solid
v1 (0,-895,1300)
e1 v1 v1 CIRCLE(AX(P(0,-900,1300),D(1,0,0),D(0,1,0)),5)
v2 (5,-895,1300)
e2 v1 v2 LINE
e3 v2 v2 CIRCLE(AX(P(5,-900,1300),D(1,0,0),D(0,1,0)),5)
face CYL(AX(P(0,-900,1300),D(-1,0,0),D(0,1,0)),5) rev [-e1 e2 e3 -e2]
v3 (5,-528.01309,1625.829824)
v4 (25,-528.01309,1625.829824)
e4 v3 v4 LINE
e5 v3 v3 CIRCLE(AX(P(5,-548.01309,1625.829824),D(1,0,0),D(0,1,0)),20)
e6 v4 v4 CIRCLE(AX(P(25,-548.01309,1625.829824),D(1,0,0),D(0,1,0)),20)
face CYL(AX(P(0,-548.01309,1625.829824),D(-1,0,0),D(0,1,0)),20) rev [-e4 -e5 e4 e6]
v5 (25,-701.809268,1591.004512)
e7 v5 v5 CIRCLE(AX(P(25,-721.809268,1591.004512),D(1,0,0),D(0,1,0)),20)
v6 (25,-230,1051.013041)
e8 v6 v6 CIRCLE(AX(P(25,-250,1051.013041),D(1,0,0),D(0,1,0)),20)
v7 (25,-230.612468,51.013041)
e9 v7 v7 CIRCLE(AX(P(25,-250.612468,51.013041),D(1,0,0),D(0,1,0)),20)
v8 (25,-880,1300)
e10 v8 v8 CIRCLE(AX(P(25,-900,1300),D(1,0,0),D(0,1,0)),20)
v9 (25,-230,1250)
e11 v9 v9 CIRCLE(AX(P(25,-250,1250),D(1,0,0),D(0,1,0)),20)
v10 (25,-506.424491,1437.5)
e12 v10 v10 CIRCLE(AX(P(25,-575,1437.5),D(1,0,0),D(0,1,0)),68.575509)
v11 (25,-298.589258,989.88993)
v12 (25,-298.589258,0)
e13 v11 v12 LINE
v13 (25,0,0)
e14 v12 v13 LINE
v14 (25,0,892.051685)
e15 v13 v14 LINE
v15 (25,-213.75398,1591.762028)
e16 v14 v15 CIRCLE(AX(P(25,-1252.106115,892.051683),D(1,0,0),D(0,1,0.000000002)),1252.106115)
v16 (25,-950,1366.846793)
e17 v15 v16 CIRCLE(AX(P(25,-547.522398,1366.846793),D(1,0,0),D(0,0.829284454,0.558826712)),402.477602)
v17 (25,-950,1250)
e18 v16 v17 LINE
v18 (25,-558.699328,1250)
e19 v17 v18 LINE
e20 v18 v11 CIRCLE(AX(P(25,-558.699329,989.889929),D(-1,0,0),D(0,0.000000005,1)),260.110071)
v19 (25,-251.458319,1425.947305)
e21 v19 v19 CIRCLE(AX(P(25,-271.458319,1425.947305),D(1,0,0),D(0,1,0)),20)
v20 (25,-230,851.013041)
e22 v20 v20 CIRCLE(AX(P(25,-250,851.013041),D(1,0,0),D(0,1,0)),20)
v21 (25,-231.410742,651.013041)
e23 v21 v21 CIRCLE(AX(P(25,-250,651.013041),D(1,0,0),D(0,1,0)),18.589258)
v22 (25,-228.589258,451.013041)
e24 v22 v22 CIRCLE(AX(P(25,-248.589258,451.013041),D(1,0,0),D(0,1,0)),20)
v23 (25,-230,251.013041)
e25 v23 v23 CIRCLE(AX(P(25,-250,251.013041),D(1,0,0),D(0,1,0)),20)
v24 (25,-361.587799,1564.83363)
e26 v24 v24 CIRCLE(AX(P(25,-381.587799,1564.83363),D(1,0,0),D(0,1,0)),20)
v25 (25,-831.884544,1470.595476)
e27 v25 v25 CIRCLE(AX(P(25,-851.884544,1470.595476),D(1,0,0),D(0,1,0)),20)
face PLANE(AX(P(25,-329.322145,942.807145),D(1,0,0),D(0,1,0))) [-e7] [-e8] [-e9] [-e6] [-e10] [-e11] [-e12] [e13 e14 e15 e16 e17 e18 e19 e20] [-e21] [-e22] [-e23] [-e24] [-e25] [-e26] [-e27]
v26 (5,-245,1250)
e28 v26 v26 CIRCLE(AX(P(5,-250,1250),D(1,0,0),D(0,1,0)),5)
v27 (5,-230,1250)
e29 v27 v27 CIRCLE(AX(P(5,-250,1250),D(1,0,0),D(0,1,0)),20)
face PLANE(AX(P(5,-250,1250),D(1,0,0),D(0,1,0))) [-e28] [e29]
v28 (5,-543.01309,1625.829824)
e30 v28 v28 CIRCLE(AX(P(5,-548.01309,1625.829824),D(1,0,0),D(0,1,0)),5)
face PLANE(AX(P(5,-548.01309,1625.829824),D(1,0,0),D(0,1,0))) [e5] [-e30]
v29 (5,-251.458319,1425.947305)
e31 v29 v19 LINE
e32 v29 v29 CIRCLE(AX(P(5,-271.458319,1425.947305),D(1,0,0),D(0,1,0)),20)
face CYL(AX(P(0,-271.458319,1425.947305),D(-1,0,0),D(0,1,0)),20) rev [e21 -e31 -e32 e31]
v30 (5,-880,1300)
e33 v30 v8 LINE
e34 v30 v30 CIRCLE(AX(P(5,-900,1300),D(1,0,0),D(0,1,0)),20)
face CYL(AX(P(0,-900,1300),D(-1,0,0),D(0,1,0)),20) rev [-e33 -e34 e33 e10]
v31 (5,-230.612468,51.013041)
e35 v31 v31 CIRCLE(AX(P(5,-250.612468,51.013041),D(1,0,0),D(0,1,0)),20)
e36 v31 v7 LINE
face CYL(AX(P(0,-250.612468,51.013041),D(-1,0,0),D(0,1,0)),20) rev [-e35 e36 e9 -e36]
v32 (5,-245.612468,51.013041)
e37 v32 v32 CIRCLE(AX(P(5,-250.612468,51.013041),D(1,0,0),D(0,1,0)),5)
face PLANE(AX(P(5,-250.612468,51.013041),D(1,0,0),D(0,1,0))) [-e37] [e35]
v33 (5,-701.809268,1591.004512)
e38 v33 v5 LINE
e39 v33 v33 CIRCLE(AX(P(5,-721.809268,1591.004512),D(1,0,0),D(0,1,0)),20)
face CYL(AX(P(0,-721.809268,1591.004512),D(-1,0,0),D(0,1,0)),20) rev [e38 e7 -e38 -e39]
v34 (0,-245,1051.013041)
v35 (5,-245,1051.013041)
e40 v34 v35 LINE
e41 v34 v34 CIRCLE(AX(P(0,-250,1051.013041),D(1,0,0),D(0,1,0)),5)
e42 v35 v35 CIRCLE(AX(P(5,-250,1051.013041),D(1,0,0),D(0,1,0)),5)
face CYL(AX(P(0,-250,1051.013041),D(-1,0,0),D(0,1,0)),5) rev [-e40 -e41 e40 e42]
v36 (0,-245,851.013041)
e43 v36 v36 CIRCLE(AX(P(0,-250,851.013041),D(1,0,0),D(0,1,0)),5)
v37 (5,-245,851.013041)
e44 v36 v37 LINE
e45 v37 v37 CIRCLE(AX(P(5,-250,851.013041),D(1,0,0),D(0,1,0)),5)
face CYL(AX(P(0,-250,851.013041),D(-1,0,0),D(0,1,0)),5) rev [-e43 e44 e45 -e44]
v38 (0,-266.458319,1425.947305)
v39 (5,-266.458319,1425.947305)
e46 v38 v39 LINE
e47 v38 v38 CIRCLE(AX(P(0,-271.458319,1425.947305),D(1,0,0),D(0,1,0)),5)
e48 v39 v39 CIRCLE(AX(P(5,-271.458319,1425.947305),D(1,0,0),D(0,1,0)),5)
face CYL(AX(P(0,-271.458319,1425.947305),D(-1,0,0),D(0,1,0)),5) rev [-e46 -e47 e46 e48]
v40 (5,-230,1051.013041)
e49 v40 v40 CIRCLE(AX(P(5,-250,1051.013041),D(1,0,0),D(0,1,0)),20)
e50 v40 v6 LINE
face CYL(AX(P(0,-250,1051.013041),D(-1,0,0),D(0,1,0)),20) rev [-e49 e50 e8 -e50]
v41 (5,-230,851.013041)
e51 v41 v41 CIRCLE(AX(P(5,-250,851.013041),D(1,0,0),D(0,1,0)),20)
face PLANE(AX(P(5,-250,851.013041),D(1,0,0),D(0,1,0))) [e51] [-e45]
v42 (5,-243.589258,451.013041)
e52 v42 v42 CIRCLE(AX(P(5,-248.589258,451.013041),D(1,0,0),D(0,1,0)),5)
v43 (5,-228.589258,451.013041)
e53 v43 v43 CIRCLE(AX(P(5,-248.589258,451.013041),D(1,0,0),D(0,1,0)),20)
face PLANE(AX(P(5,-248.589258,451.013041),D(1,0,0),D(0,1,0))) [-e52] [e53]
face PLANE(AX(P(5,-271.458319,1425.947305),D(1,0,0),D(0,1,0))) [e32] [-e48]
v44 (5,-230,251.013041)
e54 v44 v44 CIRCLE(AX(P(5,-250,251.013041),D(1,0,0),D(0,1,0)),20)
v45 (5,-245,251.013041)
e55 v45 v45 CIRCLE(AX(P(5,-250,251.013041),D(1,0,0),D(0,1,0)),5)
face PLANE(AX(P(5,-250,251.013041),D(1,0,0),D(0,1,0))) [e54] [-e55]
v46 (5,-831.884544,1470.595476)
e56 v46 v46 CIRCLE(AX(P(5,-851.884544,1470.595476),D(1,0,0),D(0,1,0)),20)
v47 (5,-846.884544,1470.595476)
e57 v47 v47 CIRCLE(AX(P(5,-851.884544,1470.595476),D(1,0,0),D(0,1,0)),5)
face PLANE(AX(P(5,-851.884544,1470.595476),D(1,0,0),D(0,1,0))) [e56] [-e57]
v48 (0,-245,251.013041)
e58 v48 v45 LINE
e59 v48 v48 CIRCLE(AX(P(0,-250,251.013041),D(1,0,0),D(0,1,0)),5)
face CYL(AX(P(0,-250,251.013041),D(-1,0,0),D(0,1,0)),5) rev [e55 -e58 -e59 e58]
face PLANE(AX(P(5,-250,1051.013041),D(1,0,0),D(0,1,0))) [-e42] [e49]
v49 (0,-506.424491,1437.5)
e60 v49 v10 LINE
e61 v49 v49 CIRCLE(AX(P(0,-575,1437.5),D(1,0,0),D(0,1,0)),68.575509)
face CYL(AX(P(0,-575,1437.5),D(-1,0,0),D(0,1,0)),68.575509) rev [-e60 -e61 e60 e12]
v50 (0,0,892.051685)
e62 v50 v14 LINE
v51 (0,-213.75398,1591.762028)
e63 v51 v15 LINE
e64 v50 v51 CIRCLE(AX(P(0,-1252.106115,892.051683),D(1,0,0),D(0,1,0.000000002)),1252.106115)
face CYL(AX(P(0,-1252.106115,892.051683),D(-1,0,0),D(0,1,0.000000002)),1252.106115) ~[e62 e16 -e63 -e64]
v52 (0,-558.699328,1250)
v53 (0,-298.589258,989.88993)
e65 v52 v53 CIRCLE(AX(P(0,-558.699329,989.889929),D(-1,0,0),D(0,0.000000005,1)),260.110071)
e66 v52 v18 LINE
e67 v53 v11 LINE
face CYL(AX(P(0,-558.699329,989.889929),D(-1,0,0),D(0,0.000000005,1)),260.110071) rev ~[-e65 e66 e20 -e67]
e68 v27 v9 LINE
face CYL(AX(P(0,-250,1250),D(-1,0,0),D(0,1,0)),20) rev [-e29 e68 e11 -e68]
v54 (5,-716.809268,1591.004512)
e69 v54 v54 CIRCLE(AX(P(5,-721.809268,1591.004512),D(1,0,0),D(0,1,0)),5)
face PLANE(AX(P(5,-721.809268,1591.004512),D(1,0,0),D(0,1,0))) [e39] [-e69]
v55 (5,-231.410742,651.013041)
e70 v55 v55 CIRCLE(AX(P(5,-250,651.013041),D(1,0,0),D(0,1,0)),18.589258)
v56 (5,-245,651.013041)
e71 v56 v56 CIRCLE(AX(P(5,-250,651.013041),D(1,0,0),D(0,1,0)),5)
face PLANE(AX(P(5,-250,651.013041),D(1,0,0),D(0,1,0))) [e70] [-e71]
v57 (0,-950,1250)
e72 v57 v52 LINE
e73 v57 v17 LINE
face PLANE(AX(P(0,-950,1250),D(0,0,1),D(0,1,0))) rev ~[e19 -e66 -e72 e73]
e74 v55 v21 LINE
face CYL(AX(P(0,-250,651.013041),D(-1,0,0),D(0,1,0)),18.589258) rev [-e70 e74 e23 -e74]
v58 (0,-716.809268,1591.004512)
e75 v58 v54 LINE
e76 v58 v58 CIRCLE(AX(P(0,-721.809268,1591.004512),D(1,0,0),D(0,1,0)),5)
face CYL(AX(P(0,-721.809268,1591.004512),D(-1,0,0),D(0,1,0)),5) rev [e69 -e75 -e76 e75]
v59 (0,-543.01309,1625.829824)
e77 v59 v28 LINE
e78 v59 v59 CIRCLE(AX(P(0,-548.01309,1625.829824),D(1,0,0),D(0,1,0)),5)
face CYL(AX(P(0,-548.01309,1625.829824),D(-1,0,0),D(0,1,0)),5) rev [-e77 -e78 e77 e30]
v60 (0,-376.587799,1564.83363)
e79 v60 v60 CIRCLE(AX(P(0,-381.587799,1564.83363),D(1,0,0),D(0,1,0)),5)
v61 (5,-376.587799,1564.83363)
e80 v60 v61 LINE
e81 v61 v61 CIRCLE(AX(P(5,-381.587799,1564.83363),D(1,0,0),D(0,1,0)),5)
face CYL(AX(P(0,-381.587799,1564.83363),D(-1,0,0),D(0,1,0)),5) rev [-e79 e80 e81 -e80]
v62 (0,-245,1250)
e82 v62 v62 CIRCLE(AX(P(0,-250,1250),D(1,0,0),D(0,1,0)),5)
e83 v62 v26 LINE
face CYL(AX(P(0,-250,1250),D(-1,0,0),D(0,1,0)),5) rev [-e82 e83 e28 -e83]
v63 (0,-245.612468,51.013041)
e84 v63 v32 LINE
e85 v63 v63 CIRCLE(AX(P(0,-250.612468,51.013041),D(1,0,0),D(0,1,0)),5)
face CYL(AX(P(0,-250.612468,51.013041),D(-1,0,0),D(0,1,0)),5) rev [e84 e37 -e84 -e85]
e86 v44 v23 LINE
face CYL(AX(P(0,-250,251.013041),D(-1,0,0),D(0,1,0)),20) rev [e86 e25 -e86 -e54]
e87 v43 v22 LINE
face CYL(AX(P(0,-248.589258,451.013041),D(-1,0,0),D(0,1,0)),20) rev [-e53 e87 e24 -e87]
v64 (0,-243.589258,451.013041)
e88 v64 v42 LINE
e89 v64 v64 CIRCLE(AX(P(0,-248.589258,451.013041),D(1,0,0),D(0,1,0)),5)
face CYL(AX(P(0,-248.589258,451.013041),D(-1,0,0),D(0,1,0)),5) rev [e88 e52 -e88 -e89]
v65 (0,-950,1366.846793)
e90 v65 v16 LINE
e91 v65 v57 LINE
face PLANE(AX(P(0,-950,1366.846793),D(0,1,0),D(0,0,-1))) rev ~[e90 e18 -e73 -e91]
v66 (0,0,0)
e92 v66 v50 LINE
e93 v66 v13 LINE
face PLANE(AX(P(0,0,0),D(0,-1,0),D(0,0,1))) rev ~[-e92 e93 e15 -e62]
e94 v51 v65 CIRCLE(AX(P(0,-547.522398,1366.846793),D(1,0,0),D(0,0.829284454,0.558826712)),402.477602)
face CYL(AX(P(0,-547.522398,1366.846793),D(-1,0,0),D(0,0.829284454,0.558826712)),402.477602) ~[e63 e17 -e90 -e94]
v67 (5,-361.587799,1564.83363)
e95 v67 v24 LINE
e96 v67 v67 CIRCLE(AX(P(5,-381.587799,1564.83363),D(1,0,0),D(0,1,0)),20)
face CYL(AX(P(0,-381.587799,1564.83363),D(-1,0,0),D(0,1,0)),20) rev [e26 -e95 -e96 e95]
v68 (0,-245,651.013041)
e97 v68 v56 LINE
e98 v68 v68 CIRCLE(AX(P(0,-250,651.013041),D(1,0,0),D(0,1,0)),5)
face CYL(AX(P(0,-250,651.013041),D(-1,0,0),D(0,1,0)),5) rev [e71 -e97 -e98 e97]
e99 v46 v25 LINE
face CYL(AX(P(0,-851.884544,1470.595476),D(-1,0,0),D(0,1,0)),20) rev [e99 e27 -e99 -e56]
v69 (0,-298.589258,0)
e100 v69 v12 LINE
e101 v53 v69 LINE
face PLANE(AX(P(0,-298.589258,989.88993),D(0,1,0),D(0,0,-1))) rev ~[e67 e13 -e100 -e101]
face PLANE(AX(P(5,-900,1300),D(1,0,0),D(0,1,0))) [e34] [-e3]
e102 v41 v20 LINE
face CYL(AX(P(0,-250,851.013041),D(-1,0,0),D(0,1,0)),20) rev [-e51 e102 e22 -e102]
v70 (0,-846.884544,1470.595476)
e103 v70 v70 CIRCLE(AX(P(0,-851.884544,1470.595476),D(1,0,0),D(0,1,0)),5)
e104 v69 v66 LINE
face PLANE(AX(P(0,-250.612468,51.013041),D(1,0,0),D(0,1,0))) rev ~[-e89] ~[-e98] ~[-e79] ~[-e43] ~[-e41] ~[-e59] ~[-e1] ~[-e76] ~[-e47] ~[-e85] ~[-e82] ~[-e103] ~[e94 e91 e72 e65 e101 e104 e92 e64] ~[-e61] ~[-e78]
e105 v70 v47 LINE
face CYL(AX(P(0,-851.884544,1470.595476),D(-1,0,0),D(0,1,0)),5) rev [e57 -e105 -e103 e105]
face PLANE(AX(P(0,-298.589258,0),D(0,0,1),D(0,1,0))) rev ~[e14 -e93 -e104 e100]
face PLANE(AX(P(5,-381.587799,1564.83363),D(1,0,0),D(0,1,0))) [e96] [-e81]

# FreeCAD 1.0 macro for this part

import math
import FreeCAD as App
import Part
import Sketcher
from FreeCAD import Vector

doc = App.newDocument("Part")
body = doc.addObject("PartDesign::Body", "Body")

# Sketch on YZ plane
sketch1 = body.newObject("Sketcher::SketchObject", "Sketch")
sketch1.AttachmentSupport = (doc.getObject("YZ_Plane"), [""])
sketch1.MapMode = "FlatFace"
sketch1.addGeometry([
    Part.LineSegment(Vector(-299, 0, 0), Vector(0, 0, 0)),  # 0
    Part.LineSegment(Vector(0, 0, 0), Vector(0, 892, 0)),  # 1
    Part.ArcOfCircle(Part.Circle(Vector(-1252, 892, 0), Vector(0, 0, 1), 1252), math.radians(0), math.radians(34)),  # 2
    Part.ArcOfCircle(Part.Circle(Vector(-548, 1367, 0), Vector(0, 0, 1), 402), math.radians(34), math.radians(180)),  # 3
    Part.LineSegment(Vector(-950, 1367, 0), Vector(-950, 1250, 0)),  # 4
    Part.LineSegment(Vector(-950, 1250, 0), Vector(-559, 1250, 0)),  # 5
    Part.ArcOfCircle(Part.Circle(Vector(-559, 990, 0), Vector(0, 0, 1), 260), math.radians(0), math.radians(90)),  # 6
    Part.LineSegment(Vector(-299, 990, 0), Vector(-299, 0, 0)),  # 7
    Part.Circle(Vector(-251, 51, 0), Vector(0, 0, 1), 20),  # 8
    Part.Circle(Vector(-250, 251, 0), Vector(0, 0, 1), 20),  # 9
    Part.Circle(Vector(-249, 451, 0), Vector(0, 0, 1), 20),  # 10
    Part.Circle(Vector(-250, 651, 0), Vector(0, 0, 1), 19),  # 11
    Part.Circle(Vector(-900, 1300, 0), Vector(0, 0, 1), 20),  # 12
    Part.Circle(Vector(-852, 1471, 0), Vector(0, 0, 1), 20),  # 13
    Part.Circle(Vector(-575, 1438, 0), Vector(0, 0, 1), 69),  # 14
    Part.Circle(Vector(-722, 1591, 0), Vector(0, 0, 1), 20),  # 15
    Part.Circle(Vector(-250, 851, 0), Vector(0, 0, 1), 20),  # 16
    Part.Circle(Vector(-250, 1051, 0), Vector(0, 0, 1), 20),  # 17
    Part.Circle(Vector(-548, 1626, 0), Vector(0, 0, 1), 20),  # 18
    Part.Circle(Vector(-250, 1250, 0), Vector(0, 0, 1), 20),  # 19
    Part.Circle(Vector(-271, 1426, 0), Vector(0, 0, 1), 20),  # 20
    Part.Circle(Vector(-382, 1565, 0), Vector(0, 0, 1), 20),  # 21
], False)
sketch1.addConstraint([
    Sketcher.Constraint("Coincident", 0, 2, 1, 1),
    Sketcher.Constraint("Coincident", 1, 2, 2, 1),
    Sketcher.Constraint("Tangent", 2, 2, 3, 1),
    Sketcher.Constraint("Tangent", 3, 2, 4, 1),
    Sketcher.Constraint("Coincident", 4, 2, 5, 1),
    Sketcher.Constraint("Tangent", 5, 2, 6, 2),
    Sketcher.Constraint("Tangent", 6, 1, 7, 1),
    Sketcher.Constraint("Coincident", 7, 2, 0, 1),
    Sketcher.Constraint("Horizontal", 0),
    Sketcher.Constraint("Vertical", 1),
    Sketcher.Constraint("Vertical", 4),
    Sketcher.Constraint("Horizontal", 5),
    Sketcher.Constraint("Vertical", 7),
    Sketcher.Constraint("Coincident", 0, 2, -1, 1),
    Sketcher.Constraint("Equal", 8, 9),
    Sketcher.Constraint("Equal", 9, 10),
    Sketcher.Constraint("Equal", 10, 12),
    Sketcher.Constraint("Equal", 12, 13),
    Sketcher.Constraint("Equal", 13, 15),
    Sketcher.Constraint("Equal", 15, 16),
    Sketcher.Constraint("Equal", 16, 17),
    Sketcher.Constraint("Equal", 17, 18),
    Sketcher.Constraint("Equal", 18, 19),
    Sketcher.Constraint("Equal", 19, 20),
    Sketcher.Constraint("Equal", 20, 21),
    Sketcher.Constraint("Horizontal", 19, 3, 4, 2),
    Sketcher.Constraint("Vertical", 9, 3, 11, 3),
    Sketcher.Constraint("Vertical", 11, 3, 16, 3),
    Sketcher.Constraint("Vertical", 16, 3, 17, 3),
    Sketcher.Constraint("Vertical", 17, 3, 19, 3),
    Sketcher.Constraint("Diameter", 8, 40.0),
    Sketcher.Constraint("DistanceX", 9, 3, -1, 1, 250.0),
    Sketcher.Constraint("DistanceX", 12, 3, -1, 1, 900.0),
    Sketcher.Constraint("DistanceY", -1, 1, 12, 3, 1300.0),
    Sketcher.Constraint("DistanceX", 14, 3, -1, 1, 575.0),
    Sketcher.Constraint("DistanceY", -1, 1, 19, 3, 1250.0),
    Sketcher.Constraint("DistanceX", 3, 2, -1, 1, 950.0),
    Sketcher.Constraint("DistanceY", 8, 3, 9, 3, 200.0),
    Sketcher.Constraint("DistanceY", 9, 3, 10, 3, 200.0),
    Sketcher.Constraint("DistanceY", 10, 3, 11, 3, 200.0),
    Sketcher.Constraint("DistanceY", 11, 3, 16, 3, 200.0),
    Sketcher.Constraint("DistanceY", 16, 3, 17, 3, 200.0),
    Sketcher.Constraint("DistanceX", 7, 2, 10, 3, 50.0),
    Sketcher.Constraint("DistanceY", -1, 1, 14, 3, 1437.5),
    Sketcher.Constraint("Radius", 3, 402.477602),
    Sketcher.Constraint("Diameter", 14, 137.151018),
    Sketcher.Constraint("Radius", 6, 260.110071),
    Sketcher.Constraint("Diameter", 11, 37.178516),
    Sketcher.Constraint("Radius", 2, 1252.106115),
    Sketcher.Constraint("DistanceX", 5, 1, 5, 2, 391.300672),
    Sketcher.Constraint("DistanceX", 21, 3, -1, 1, 381.587799),
    Sketcher.Constraint("DistanceY", 1, 1, 1, 2, 892.051685),
    Sketcher.Constraint("DistanceY", 4, 2, 4, 1, 116.846793),
    Sketcher.Constraint("DistanceX", 8, 3, -1, 1, 250.612468),
    Sketcher.Constraint("DistanceY", -1, 1, 8, 3, 51.013041),
    Sketcher.Constraint("DistanceX", 15, 3, -1, 1, 721.809268),
    Sketcher.Constraint("DistanceY", -1, 1, 15, 3, 1591.004512),
    Sketcher.Constraint("DistanceX", 18, 3, -1, 1, 548.01309),
    Sketcher.Constraint("DistanceX", 20, 3, -1, 1, 271.458319),
    Sketcher.Constraint("DistanceY", -1, 1, 21, 3, 1564.83363),
    Sketcher.Constraint("DistanceX", 2, 3, 13, 3, 400.221571),
    Sketcher.Constraint("DistanceY", 15, 3, 18, 3, 34.825312),
    Sketcher.Constraint("DistanceY", 3, 3, 20, 3, 59.100512),
    Sketcher.Constraint("DistanceY", -1, 1, 13, 3, 1470.595476),
])
pad1 = body.newObject("PartDesign::Pad", "Pad")
pad1.Profile = sketch1
pad1.Length = 25

# Sketch on YZ plane
sketch2 = body.newObject("Sketcher::SketchObject", "Sketch001")
sketch2.AttachmentSupport = (doc.getObject("YZ_Plane"), [""])
sketch2.MapMode = "FlatFace"
sketch2.addGeometry([
    Part.Circle(Vector(-251, 51, 0), Vector(0, 0, 1), 20),  # 0
    Part.Circle(Vector(-251, 51, 0), Vector(0, 0, 1), 5),  # 1
    Part.Circle(Vector(-250, 251, 0), Vector(0, 0, 1), 20),  # 2
    Part.Circle(Vector(-250, 251, 0), Vector(0, 0, 1), 5),  # 3
    Part.Circle(Vector(-249, 451, 0), Vector(0, 0, 1), 20),  # 4
    Part.Circle(Vector(-249, 451, 0), Vector(0, 0, 1), 5),  # 5
    Part.Circle(Vector(-250, 651, 0), Vector(0, 0, 1), 19),  # 6
    Part.Circle(Vector(-250, 651, 0), Vector(0, 0, 1), 5),  # 7
    Part.Circle(Vector(-250, 851, 0), Vector(0, 0, 1), 20),  # 8
    Part.Circle(Vector(-250, 851, 0), Vector(0, 0, 1), 5),  # 9
    Part.Circle(Vector(-250, 1051, 0), Vector(0, 0, 1), 20),  # 10
    Part.Circle(Vector(-250, 1051, 0), Vector(0, 0, 1), 5),  # 11
    Part.Circle(Vector(-250, 1250, 0), Vector(0, 0, 1), 20),  # 12
    Part.Circle(Vector(-250, 1250, 0), Vector(0, 0, 1), 5),  # 13
    Part.Circle(Vector(-271, 1426, 0), Vector(0, 0, 1), 20),  # 14
    Part.Circle(Vector(-271, 1426, 0), Vector(0, 0, 1), 5),  # 15
    Part.Circle(Vector(-382, 1565, 0), Vector(0, 0, 1), 20),  # 16
    Part.Circle(Vector(-382, 1565, 0), Vector(0, 0, 1), 5),  # 17
    Part.Circle(Vector(-548, 1626, 0), Vector(0, 0, 1), 20),  # 18
    Part.Circle(Vector(-548, 1626, 0), Vector(0, 0, 1), 5),  # 19
    Part.Circle(Vector(-722, 1591, 0), Vector(0, 0, 1), 20),  # 20
    Part.Circle(Vector(-722, 1591, 0), Vector(0, 0, 1), 5),  # 21
    Part.Circle(Vector(-852, 1471, 0), Vector(0, 0, 1), 20),  # 22
    Part.Circle(Vector(-852, 1471, 0), Vector(0, 0, 1), 5),  # 23
    Part.Circle(Vector(-900, 1300, 0), Vector(0, 0, 1), 20),  # 24
    Part.Circle(Vector(-900, 1300, 0), Vector(0, 0, 1), 5),  # 25
], False)
sketch2.addConstraint([
    Sketcher.Constraint("Coincident", 1, 3, 0, 3),
    Sketcher.Constraint("Coincident", 3, 3, 2, 3),
    Sketcher.Constraint("Coincident", 5, 3, 4, 3),
    Sketcher.Constraint("Coincident", 7, 3, 6, 3),
    Sketcher.Constraint("Coincident", 9, 3, 8, 3),
    Sketcher.Constraint("Coincident", 11, 3, 10, 3),
    Sketcher.Constraint("Coincident", 13, 3, 12, 3),
    Sketcher.Constraint("Coincident", 15, 3, 14, 3),
    Sketcher.Constraint("Coincident", 17, 3, 16, 3),
    Sketcher.Constraint("Coincident", 19, 3, 18, 3),
    Sketcher.Constraint("Coincident", 21, 3, 20, 3),
    Sketcher.Constraint("Coincident", 23, 3, 22, 3),
    Sketcher.Constraint("Coincident", 25, 3, 24, 3),
    Sketcher.Constraint("Equal", 0, 2),
    Sketcher.Constraint("Equal", 1, 3),
    Sketcher.Constraint("Equal", 2, 4),
    Sketcher.Constraint("Equal", 3, 5),
    Sketcher.Constraint("Equal", 5, 7),
    Sketcher.Constraint("Equal", 4, 8),
    Sketcher.Constraint("Equal", 7, 9),
    Sketcher.Constraint("Equal", 8, 10),
    Sketcher.Constraint("Equal", 9, 11),
    Sketcher.Constraint("Equal", 10, 12),
    Sketcher.Constraint("Equal", 11, 13),
    Sketcher.Constraint("Equal", 12, 14),
    Sketcher.Constraint("Equal", 13, 15),
    Sketcher.Constraint("Equal", 14, 16),
    Sketcher.Constraint("Equal", 15, 17),
    Sketcher.Constraint("Equal", 16, 18),
    Sketcher.Constraint("Equal", 17, 19),
    Sketcher.Constraint("Equal", 18, 20),
    Sketcher.Constraint("Equal", 19, 21),
    Sketcher.Constraint("Equal", 20, 22),
    Sketcher.Constraint("Equal", 21, 23),
    Sketcher.Constraint("Equal", 22, 24),
    Sketcher.Constraint("Equal", 23, 25),
    Sketcher.Constraint("Vertical", 3, 3, 6, 3),
    Sketcher.Constraint("Vertical", 7, 3, 8, 3),
    Sketcher.Constraint("Vertical", 9, 3, 10, 3),
    Sketcher.Constraint("Vertical", 11, 3, 12, 3),
    Sketcher.Constraint("Diameter", 0, 40.0),
    Sketcher.Constraint("Diameter", 1, 10.0),
    Sketcher.Constraint("DistanceX", 2, 3, -1, 1, 250.0),
    Sketcher.Constraint("DistanceY", -1, 1, 12, 3, 1250.0),
    Sketcher.Constraint("DistanceX", 24, 3, -1, 1, 900.0),
    Sketcher.Constraint("DistanceY", -1, 1, 24, 3, 1300.0),
    Sketcher.Constraint("DistanceY", 0, 3, 2, 3, 200.0),
    Sketcher.Constraint("DistanceY", 2, 3, 4, 3, 200.0),
    Sketcher.Constraint("DistanceY", 4, 3, 6, 3, 200.0),
    Sketcher.Constraint("DistanceY", 6, 3, 8, 3, 200.0),
    Sketcher.Constraint("DistanceY", 8, 3, 10, 3, 200.0),
    Sketcher.Constraint("Diameter", 6, 37.178516),
    Sketcher.Constraint("DistanceX", 16, 3, -1, 1, 381.587799),
    Sketcher.Constraint("DistanceX", 0, 3, -1, 1, 250.612468),
    Sketcher.Constraint("DistanceY", -1, 1, 0, 3, 51.013041),
    Sketcher.Constraint("DistanceX", 4, 3, -1, 1, 248.589258),
    Sketcher.Constraint("DistanceX", 14, 3, -1, 1, 271.458319),
    Sketcher.Constraint("DistanceY", -1, 1, 16, 3, 1564.83363),
    Sketcher.Constraint("DistanceX", 18, 3, -1, 1, 548.01309),
    Sketcher.Constraint("DistanceX", 20, 3, -1, 1, 721.809268),
    Sketcher.Constraint("DistanceY", -1, 1, 20, 3, 1591.004512),
    Sketcher.Constraint("DistanceY", 14, 3, 18, 3, 199.882519),
    Sketcher.Constraint("DistanceY", 20, 3, 18, 3, 34.825312),
    Sketcher.Constraint("DistanceX", 22, 3, -1, 1, 851.884544),
    Sketcher.Constraint("DistanceY", -1, 1, 22, 3, 1470.595476),
])
pad2 = body.newObject("PartDesign::Pad", "Pad001")
pad2.Profile = sketch2
pad2.Length = 5

doc.recompute()
